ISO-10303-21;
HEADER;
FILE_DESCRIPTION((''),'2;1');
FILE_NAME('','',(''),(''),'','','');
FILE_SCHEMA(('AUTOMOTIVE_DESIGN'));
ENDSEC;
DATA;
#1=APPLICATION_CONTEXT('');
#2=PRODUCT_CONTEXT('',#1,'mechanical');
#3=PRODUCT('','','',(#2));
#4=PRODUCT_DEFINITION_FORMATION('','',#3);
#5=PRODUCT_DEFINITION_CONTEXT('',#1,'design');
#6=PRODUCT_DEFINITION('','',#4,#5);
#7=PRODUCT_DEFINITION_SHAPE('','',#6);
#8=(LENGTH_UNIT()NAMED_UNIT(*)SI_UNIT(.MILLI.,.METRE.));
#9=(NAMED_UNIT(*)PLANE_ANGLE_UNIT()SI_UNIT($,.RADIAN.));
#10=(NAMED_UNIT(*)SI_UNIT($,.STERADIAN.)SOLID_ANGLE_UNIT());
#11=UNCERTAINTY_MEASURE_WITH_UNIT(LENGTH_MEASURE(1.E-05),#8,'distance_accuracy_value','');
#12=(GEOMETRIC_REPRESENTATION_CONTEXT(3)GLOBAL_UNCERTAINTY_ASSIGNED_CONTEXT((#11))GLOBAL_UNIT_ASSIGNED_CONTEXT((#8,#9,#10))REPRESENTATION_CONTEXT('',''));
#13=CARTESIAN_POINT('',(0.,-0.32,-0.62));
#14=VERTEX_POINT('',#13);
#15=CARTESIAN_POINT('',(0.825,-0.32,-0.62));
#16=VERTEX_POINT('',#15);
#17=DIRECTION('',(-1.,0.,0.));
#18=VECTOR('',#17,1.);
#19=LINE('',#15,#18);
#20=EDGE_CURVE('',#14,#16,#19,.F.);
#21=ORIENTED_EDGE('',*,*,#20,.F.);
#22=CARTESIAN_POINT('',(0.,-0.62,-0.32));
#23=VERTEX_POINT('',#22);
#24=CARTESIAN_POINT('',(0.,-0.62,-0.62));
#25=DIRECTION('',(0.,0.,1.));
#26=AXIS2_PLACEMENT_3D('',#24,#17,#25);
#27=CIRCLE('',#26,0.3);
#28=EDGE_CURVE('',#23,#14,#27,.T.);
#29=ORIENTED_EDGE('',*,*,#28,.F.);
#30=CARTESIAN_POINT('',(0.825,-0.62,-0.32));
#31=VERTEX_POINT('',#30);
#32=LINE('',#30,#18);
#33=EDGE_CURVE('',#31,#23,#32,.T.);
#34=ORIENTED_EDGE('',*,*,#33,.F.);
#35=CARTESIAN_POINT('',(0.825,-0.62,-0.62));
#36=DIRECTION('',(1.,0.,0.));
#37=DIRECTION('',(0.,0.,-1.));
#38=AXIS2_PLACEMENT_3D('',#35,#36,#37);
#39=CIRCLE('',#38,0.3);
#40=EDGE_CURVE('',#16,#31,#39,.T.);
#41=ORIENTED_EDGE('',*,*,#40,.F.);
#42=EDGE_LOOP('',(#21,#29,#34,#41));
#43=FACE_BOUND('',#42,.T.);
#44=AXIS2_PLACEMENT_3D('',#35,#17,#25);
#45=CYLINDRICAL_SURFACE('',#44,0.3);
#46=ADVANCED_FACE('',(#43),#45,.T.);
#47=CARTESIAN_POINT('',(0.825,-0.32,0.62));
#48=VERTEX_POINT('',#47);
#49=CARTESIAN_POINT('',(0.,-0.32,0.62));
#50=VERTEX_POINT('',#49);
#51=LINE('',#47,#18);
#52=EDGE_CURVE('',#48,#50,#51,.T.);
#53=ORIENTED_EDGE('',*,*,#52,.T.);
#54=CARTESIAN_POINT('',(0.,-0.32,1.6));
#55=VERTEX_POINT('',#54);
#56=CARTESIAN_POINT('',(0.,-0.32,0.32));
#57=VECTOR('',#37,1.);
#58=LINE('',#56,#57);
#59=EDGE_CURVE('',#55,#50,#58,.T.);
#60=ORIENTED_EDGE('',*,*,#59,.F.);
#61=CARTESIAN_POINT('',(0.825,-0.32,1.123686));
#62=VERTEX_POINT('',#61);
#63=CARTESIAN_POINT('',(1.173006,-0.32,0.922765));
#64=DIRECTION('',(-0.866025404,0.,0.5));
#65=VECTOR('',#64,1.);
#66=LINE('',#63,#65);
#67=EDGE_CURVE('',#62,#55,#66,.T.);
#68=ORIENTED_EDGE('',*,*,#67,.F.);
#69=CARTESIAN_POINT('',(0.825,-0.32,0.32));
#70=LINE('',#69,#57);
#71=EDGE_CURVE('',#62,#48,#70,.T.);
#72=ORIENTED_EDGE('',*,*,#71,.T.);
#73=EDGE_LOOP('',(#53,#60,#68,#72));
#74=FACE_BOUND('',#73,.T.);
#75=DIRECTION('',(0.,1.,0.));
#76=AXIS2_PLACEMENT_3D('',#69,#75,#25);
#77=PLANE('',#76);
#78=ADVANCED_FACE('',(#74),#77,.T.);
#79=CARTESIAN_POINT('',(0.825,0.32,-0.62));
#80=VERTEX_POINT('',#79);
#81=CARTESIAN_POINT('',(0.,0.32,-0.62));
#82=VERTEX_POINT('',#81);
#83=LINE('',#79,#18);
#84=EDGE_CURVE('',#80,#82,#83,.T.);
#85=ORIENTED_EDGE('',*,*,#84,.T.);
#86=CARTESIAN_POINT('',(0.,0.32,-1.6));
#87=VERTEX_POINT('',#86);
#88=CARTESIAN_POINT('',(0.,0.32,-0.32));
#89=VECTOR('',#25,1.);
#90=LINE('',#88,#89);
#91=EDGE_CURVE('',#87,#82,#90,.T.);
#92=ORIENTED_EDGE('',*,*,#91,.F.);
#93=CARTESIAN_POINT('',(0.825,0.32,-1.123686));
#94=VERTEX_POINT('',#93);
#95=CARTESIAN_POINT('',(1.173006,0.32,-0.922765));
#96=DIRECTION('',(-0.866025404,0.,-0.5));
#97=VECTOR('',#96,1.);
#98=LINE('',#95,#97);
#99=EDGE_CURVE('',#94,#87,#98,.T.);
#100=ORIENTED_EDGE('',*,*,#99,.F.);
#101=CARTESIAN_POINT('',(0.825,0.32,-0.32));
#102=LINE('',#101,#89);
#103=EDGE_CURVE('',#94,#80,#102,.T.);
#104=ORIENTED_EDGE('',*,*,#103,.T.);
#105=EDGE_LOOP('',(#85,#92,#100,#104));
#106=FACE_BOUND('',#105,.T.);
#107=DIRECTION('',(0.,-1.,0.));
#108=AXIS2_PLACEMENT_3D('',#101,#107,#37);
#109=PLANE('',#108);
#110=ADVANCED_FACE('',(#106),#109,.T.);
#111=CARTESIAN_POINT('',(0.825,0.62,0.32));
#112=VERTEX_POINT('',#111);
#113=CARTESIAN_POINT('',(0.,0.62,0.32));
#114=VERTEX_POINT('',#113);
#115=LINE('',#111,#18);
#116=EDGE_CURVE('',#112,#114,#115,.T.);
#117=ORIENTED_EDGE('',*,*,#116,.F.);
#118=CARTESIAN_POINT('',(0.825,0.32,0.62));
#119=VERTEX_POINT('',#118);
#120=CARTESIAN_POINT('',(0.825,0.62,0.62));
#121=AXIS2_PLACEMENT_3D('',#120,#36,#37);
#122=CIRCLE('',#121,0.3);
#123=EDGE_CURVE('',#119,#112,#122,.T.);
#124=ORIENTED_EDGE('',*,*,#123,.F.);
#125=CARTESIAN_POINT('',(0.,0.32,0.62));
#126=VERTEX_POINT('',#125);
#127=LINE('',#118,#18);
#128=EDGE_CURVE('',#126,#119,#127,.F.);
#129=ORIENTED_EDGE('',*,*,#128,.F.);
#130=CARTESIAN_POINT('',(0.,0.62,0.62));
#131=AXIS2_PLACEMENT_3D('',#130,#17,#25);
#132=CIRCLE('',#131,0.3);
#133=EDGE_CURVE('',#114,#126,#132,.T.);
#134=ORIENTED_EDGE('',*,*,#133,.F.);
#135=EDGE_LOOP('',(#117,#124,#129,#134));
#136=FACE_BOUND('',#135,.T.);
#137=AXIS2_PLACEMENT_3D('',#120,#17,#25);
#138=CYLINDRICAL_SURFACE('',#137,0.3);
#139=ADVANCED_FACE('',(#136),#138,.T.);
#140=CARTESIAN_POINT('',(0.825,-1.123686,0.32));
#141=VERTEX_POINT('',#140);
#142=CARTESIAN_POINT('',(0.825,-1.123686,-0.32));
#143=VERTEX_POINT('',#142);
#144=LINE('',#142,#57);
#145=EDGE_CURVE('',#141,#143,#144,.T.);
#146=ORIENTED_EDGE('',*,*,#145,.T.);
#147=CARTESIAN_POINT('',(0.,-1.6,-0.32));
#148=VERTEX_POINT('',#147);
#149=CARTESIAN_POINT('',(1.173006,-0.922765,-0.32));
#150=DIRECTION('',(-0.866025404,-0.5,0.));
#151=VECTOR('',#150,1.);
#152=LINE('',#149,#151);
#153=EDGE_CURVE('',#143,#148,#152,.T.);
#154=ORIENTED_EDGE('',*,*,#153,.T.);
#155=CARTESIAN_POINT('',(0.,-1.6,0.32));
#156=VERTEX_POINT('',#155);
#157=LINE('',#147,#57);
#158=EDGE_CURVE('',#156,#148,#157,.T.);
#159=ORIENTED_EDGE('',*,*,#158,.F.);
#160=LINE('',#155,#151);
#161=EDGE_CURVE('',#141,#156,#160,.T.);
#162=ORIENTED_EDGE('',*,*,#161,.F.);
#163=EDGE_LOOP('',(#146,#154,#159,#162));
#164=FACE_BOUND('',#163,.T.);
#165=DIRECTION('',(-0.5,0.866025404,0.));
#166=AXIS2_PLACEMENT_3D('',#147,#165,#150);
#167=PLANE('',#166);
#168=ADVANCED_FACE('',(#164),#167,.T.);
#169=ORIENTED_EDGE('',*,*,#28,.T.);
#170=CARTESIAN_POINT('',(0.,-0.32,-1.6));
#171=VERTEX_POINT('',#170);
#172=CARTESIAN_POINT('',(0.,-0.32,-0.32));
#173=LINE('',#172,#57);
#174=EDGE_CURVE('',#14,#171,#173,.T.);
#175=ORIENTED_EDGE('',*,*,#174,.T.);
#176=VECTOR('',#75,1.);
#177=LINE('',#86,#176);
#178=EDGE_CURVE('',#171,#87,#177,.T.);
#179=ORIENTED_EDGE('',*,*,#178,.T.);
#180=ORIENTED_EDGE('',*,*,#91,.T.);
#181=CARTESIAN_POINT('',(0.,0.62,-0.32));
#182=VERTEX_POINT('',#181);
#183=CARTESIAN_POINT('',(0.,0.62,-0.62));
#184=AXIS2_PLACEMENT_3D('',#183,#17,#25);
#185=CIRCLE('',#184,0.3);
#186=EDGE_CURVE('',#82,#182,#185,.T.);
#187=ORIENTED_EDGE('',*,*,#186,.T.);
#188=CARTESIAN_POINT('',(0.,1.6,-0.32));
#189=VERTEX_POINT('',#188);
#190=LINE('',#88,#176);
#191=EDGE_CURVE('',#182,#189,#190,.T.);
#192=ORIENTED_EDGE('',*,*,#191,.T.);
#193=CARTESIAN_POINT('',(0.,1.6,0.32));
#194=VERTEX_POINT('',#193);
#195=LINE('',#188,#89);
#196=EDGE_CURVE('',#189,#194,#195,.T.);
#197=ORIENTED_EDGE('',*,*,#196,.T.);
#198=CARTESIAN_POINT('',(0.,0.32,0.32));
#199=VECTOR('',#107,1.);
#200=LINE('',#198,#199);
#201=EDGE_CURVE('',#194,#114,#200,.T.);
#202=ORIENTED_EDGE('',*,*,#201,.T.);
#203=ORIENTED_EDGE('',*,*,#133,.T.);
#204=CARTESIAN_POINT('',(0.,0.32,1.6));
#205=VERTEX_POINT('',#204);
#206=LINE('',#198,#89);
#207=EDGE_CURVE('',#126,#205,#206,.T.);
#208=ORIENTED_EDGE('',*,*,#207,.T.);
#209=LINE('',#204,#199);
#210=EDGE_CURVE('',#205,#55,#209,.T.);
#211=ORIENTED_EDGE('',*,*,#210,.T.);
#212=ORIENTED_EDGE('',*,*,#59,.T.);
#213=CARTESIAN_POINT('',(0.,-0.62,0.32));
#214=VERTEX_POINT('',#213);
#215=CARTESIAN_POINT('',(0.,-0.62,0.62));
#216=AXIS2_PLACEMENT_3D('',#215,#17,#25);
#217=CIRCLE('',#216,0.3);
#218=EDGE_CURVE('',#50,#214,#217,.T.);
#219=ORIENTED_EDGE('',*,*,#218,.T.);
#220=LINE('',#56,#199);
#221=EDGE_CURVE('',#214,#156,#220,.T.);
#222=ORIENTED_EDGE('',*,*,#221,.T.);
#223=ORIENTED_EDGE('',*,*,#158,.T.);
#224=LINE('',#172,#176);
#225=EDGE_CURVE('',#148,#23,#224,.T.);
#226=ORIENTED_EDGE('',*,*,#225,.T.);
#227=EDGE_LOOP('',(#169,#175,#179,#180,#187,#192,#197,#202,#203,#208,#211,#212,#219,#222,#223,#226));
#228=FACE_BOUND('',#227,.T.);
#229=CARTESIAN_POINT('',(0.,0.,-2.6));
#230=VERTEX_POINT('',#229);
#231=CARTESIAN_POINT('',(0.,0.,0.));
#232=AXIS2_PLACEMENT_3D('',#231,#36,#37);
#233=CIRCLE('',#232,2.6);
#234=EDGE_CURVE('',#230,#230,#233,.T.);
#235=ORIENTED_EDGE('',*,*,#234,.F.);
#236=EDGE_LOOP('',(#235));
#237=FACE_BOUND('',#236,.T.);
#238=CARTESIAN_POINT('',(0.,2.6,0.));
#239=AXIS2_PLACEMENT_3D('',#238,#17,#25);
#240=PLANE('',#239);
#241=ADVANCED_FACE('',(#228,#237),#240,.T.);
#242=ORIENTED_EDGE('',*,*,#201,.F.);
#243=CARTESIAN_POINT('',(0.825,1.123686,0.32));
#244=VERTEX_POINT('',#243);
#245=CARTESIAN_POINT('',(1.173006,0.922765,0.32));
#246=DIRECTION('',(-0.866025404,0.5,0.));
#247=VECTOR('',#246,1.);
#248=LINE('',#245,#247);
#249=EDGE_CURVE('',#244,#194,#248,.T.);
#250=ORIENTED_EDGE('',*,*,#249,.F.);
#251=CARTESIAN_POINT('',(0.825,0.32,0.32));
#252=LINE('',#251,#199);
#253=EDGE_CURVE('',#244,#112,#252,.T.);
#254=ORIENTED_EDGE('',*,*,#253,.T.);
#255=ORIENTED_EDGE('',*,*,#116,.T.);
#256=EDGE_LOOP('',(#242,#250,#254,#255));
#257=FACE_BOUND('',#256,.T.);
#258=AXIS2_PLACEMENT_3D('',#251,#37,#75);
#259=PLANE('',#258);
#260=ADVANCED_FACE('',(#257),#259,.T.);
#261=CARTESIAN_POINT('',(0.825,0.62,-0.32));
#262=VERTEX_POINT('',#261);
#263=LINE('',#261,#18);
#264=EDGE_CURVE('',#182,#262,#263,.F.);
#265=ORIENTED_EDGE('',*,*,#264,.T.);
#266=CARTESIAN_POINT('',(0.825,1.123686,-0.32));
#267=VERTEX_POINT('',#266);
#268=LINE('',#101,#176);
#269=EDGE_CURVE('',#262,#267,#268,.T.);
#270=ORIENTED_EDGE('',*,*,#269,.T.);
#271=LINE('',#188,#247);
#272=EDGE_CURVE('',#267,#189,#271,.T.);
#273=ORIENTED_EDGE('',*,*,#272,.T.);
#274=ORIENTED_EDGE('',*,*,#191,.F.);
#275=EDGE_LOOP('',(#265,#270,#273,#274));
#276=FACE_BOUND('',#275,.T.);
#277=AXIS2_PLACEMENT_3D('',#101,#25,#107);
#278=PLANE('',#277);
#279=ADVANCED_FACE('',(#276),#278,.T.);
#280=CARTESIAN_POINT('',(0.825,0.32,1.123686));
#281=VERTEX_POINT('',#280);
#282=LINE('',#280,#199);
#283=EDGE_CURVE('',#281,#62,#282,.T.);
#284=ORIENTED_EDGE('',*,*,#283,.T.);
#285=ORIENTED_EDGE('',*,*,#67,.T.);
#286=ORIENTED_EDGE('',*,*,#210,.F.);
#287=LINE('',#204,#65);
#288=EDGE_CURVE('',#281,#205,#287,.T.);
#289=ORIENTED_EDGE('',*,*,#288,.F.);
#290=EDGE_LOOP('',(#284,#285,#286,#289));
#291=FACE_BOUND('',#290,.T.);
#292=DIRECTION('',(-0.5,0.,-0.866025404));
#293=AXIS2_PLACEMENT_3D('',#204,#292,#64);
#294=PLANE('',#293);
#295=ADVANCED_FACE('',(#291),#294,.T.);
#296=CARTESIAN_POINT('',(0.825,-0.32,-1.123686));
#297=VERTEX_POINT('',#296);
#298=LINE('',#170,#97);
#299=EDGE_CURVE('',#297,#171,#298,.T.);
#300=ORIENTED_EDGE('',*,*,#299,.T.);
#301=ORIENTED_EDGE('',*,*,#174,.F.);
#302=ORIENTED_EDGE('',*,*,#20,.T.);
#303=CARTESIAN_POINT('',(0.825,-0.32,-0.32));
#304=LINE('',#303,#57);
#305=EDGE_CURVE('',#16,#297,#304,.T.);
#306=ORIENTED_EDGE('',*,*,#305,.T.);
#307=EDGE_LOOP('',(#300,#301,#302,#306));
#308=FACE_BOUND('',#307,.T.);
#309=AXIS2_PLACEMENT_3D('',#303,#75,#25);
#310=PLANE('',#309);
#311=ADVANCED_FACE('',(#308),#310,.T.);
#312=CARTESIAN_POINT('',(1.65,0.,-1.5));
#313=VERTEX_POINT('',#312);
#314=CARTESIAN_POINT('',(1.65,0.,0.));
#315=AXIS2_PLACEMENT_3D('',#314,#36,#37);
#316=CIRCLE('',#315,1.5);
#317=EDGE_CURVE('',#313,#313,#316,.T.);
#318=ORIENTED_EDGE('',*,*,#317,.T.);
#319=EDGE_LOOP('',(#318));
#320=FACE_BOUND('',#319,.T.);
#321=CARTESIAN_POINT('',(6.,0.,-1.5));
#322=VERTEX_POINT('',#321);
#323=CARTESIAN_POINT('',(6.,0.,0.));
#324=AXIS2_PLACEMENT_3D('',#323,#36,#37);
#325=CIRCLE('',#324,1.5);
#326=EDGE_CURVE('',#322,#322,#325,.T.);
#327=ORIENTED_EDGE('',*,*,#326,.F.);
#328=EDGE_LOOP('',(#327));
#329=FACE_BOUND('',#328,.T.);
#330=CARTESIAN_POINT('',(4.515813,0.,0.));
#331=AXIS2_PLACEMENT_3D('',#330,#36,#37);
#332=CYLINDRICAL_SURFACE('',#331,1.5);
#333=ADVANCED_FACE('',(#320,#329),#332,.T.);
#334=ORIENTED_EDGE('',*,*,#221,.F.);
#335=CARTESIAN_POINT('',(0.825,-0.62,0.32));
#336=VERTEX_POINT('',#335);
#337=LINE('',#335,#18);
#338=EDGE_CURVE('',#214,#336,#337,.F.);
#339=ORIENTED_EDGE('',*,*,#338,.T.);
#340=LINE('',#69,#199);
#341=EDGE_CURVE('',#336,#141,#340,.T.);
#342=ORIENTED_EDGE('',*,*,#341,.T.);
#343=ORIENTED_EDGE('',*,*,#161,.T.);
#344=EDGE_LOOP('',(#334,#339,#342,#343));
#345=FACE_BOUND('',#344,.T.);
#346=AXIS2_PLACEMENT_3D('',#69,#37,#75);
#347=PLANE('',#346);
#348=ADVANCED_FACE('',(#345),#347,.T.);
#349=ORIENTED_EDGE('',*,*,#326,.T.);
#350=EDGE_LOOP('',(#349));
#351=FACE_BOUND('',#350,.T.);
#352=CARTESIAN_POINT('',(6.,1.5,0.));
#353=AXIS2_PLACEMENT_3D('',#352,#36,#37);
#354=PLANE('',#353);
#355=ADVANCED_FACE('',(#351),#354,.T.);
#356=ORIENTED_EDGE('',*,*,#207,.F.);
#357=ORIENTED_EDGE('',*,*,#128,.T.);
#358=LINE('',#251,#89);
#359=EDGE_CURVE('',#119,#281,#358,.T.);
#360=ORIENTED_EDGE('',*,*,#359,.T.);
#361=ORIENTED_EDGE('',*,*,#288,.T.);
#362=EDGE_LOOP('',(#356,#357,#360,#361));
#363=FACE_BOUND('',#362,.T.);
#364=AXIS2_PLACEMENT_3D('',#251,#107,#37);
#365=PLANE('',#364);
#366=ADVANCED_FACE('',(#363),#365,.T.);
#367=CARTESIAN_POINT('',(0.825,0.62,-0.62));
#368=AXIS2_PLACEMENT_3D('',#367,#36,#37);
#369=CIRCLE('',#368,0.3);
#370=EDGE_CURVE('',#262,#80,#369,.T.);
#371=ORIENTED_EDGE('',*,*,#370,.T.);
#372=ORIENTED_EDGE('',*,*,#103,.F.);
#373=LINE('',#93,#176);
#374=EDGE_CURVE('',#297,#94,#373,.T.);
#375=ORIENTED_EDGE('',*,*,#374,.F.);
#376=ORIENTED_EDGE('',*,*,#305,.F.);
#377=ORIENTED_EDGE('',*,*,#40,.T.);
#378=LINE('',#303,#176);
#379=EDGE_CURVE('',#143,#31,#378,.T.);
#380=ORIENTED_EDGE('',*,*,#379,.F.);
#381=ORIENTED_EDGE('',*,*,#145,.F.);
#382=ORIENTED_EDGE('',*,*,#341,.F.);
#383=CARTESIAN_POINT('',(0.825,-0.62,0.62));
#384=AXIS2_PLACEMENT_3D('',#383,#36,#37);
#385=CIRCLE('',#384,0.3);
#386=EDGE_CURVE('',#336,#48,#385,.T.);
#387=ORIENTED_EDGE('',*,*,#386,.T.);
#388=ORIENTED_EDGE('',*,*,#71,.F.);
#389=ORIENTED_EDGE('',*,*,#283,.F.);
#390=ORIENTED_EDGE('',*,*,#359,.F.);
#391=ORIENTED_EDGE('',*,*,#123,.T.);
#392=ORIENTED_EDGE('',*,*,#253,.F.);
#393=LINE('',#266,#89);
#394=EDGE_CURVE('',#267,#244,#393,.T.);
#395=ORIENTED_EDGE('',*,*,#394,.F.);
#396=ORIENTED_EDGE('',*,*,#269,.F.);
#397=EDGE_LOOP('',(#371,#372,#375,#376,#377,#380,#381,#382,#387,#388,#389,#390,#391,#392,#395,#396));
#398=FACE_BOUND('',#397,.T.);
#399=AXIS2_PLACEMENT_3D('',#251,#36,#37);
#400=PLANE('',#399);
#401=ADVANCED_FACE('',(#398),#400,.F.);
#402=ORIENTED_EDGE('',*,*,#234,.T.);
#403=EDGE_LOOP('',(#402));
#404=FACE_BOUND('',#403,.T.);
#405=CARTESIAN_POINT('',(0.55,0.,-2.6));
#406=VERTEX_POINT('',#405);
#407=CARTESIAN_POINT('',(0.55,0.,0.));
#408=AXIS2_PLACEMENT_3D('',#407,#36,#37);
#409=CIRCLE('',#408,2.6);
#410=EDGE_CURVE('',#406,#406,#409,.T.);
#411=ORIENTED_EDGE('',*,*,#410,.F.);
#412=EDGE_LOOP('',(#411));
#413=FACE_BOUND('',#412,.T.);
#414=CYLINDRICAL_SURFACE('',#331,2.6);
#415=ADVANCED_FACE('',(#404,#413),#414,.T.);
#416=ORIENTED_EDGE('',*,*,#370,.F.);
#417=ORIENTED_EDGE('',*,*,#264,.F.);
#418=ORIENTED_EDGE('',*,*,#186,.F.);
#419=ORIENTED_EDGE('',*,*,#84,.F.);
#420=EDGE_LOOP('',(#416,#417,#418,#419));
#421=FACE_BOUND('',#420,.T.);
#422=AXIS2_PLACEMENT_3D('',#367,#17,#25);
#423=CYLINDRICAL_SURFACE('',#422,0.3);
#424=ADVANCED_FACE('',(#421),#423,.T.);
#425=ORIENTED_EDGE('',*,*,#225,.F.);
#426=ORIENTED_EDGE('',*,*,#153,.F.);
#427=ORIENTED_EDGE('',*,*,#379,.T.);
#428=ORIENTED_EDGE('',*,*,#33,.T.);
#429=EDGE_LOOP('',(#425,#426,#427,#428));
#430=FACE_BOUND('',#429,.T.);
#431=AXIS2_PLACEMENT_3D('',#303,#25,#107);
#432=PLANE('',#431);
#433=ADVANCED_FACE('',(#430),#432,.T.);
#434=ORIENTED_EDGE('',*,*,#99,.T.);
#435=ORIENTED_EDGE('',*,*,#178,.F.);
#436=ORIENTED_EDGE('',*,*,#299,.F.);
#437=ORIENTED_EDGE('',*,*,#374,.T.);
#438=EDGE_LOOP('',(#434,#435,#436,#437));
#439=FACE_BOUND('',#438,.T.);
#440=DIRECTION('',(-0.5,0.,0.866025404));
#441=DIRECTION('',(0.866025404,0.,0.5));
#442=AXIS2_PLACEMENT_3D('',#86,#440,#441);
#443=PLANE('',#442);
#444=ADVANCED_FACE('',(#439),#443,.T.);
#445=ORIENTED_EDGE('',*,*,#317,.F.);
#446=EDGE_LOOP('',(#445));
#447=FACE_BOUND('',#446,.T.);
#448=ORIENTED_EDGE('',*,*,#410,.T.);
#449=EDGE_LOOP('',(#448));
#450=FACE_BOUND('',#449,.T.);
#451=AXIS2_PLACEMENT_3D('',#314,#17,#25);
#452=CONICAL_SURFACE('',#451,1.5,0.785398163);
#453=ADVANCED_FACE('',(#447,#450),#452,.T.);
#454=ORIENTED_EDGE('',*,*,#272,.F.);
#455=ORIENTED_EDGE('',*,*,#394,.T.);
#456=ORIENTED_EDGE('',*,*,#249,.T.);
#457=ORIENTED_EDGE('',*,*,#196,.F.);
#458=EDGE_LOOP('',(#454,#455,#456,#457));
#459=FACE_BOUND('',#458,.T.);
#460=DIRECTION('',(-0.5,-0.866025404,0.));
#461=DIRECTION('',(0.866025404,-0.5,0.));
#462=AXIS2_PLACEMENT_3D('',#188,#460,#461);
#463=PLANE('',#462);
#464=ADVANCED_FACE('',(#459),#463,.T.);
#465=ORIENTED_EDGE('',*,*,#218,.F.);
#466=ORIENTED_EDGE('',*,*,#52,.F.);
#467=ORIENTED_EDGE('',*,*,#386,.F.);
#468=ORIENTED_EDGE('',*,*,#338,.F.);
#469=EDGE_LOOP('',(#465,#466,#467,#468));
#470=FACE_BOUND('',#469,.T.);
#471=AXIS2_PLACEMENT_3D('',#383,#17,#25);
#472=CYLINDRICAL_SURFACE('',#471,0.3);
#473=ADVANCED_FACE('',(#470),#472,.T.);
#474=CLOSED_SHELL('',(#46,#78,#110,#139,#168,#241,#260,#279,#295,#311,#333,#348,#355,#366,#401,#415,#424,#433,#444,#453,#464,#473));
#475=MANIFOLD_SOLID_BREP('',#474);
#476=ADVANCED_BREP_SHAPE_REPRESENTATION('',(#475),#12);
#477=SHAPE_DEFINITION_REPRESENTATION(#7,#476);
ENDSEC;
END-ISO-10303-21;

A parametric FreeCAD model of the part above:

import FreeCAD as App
import Part
import Sketcher

V = App.Vector
Q = App.Units.Quantity


def edges_at(feature, points):
    """Names of the edges that pass closest to the given points."""
    edges = feature.Shape.Edges
    near = lambda p: min(range(len(edges)), key=lambda i: edges[i].distToShape(Part.Vertex(*p))[0])
    return sorted({f"Edge{near(p) + 1}" for p in points})


def faces_at(feature, points):
    """Names of the faces that lie closest to the given points."""
    faces = feature.Shape.Faces
    near = lambda p: min(range(len(faces)), key=lambda i: faces[i].distToShape(Part.Vertex(*p))[0])
    return sorted({f"Face{near(p) + 1}" for p in points})


def add_polygon(sketch, points):
    """Adds a closed chain of lines whose ends are joined by coincident constraints."""
    first, n = sketch.GeometryCount, len(points)
    for a, b in zip(points, points[1:] + points[:1]):
        sketch.addGeometry(Part.LineSegment(App.Vector(*a, 0), App.Vector(*b, 0)), False)
    for i in range(n):
        sketch.addConstraint(Sketcher.Constraint("Coincident", first + i, 2, first + (i + 1) % n, 1))

doc = App.newDocument("Part")
body = doc.addObject("PartDesign::Body", "Body")

# Sketch on XY plane
sketch1 = body.newObject("Sketcher::SketchObject", "Sketch")
sketch1.AttachmentSupport = (doc.getObject("XY_Plane"), [""])
sketch1.MapMode = "FlatFace"
add_polygon(sketch1, [(6, 1.5), (1.6, 1.5), (0.6, 2.6), (0, 2.6), (0, 0), (6, 0)])  # lines 0-5
sketch1.addConstraint(Sketcher.Constraint("Horizontal", 0))
sketch1.addConstraint(Sketcher.Constraint("Horizontal", 2))
sketch1.addConstraint(Sketcher.Constraint("Vertical", 3))
sketch1.addConstraint(Sketcher.Constraint("Horizontal", 4))
sketch1.addConstraint(Sketcher.Constraint("Vertical", 5))
sketch1.addConstraint(Sketcher.Constraint("Coincident", 3, 2, -1, 1))
sketch1.addConstraint(Sketcher.Constraint("DistanceX", 4, 1, 4, 2, 6.0))
sketch1.addConstraint(Sketcher.Constraint("Angle", 1, Q("135 deg")))
sketch1.addConstraint(Sketcher.Constraint("DistanceY", 3, 2, 3, 1, 2.6))
sketch1.addConstraint(Sketcher.Constraint("DistanceY", 5, 1, 5, 2, 1.5))
sketch1.addConstraint(Sketcher.Constraint("DistanceX", 0, 2, 0, 1, 4.35))
revolution = body.newObject("PartDesign::Revolution", "Revolution")
revolution.Profile = sketch1
revolution.ReferenceAxis = (sketch1, ["H_Axis"])
revolution.Angle = 360

# Sketch on YZ plane
sketch2 = body.newObject("Sketcher::SketchObject", "Sketch001")
sketch2.AttachmentSupport = (doc.getObject("YZ_Plane"), [""])
sketch2.MapMode = "FlatFace"
add_polygon(sketch2, [(0.3, -0.3), (1.6, -0.3), (1.6, 0.3), (0.3, 0.3), (0.3, 1.6), (-0.3, 1.6), (-0.3, 0.3), (-1.6, 0.3), (-1.6, -0.3), (-0.3, -0.3), (-0.3, -1.6), (0.3, -1.6)])  # lines 0-11
sketch2.addConstraint(Sketcher.Constraint("Horizontal", 0))
sketch2.addConstraint(Sketcher.Constraint("Vertical", 1))
sketch2.addConstraint(Sketcher.Constraint("Horizontal", 2))
sketch2.addConstraint(Sketcher.Constraint("Vertical", 3))
sketch2.addConstraint(Sketcher.Constraint("Horizontal", 4))
sketch2.addConstraint(Sketcher.Constraint("Vertical", 5))
sketch2.addConstraint(Sketcher.Constraint("Horizontal", 6))
sketch2.addConstraint(Sketcher.Constraint("Vertical", 7))
sketch2.addConstraint(Sketcher.Constraint("Horizontal", 8))
sketch2.addConstraint(Sketcher.Constraint("Vertical", 9))
sketch2.addConstraint(Sketcher.Constraint("Horizontal", 10))
sketch2.addConstraint(Sketcher.Constraint("Vertical", 11))
sketch2.addConstraint(Sketcher.Constraint("Symmetric", 0, 2, 6, 2, -1, 1))
sketch2.addConstraint(Sketcher.Constraint("Symmetric", 2, 2, 8, 2, -1, 1))
sketch2.addConstraint(Sketcher.Constraint("Symmetric", 4, 2, 10, 2, -1, 1))
sketch2.addConstraint(Sketcher.Constraint("Symmetric", 2, 2, 5, 2, -2))
sketch2.addConstraint(Sketcher.Constraint("Equal", 10, 1))
sketch2.addConstraint(Sketcher.Constraint("Equal", 8, 3))
sketch2.addConstraint(Sketcher.Constraint("DistanceX", 0, 1, 0, 2, 1.28))
sketch2.addConstraint(Sketcher.Constraint("DistanceX", 4, 2, 4, 1, 0.64))
pocket1 = body.newObject("PartDesign::Pocket", "Pocket")
pocket1.Profile = sketch2
pocket1.Length = 0.825
pocket1.Reversed = True
doc.recompute()

draft = body.newObject("PartDesign::Draft", "Draft")
draft.Base = (pocket1, faces_at(pocket1, [
    (0.412, 1.6, 0),
    (0.412, 0, 1.6),
    (0.412, -1.6, 0),
    (0.412, 0, -1.6),
]))
draft.NeutralPlane = (doc.getObject("YZ_Plane"), [""])
draft.Angle = 30
draft.Reversed = True
doc.recompute()

fillet = body.newObject("PartDesign::Fillet", "Fillet")
fillet.Base = (draft, edges_at(draft, [
    (0.412, 0.32, 0.32),
    (0.412, -0.32, 0.32),
    (0.412, -0.32, -0.32),
    (0.412, 0.32, -0.32),
]))
fillet.Radius = 0.3

doc.recompute()
